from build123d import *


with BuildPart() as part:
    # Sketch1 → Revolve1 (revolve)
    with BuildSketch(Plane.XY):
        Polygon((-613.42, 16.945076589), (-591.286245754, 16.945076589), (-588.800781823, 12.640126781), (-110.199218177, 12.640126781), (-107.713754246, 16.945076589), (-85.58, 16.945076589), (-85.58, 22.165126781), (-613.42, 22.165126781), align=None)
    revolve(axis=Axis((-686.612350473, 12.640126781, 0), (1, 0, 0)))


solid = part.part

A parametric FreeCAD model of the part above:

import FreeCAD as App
import Part
import Sketcher

V = App.Vector
Q = App.Units.Quantity


def add_polygon(sketch, points):
    """Adds a closed chain of lines whose ends are joined by coincident constraints."""
    first, n = sketch.GeometryCount, len(points)
    for a, b in zip(points, points[1:] + points[:1]):
        sketch.addGeometry(Part.LineSegment(App.Vector(*a, 0), App.Vector(*b, 0)), False)
    for i in range(n):
        sketch.addConstraint(Sketcher.Constraint("Coincident", first + i, 2, first + (i + 1) % n, 1))

doc = App.newDocument("Part")
params = doc.addObject("Spreadsheet::Sheet", "Params")
for row, (alias, value) in enumerate([
    ("sketch1_width", "527.84 mm"),
    ("revolution_angle", "360 deg"),
], start=1):
    params.set(f"A{row}", alias)
    params.set(f"B{row}", "=" + value)
    params.setAlias(f"B{row}", alias)

body = doc.addObject("PartDesign::Body", "Body")

sketch1 = body.newObject("Sketcher::SketchObject", "Sketch")
sketch1.AttachmentSupport = (doc.getObject("XY_Plane"), [""])
sketch1.MapMode = "FlatFace"
add_polygon(sketch1, [(-613.4, 16.9), (-591.3, 16.9), (-588.8, 12.6), (-110.2, 12.6), (-107.7, 16.9), (-85.6, 16.9), (-85.6, 22.2), (-613.4, 22.2)])
sketch1.addGeometry(Part.LineSegment(V(-613.4, 12.6, 0), V(-85.6, 12.6, 0)), True)
sketch1.addConstraint([
    Sketcher.Constraint("Horizontal", 0),
    Sketcher.Constraint("Horizontal", 2),
    Sketcher.Constraint("Horizontal", 4),
    Sketcher.Constraint("Vertical", 5),
    Sketcher.Constraint("Horizontal", 6),
    Sketcher.Constraint("Vertical", 7),
    Sketcher.Constraint("Horizontal", 8),
    Sketcher.Constraint("Horizontal", 0, 2, 3, 2),
    Sketcher.Constraint("Horizontal", 2, 2, 8, 1),
    Sketcher.Constraint("Vertical", 7, 2, 8, 1),
    Sketcher.Constraint("Vertical", 5, 2, 8, 2),
    Sketcher.Constraint("Equal", 0, 4),
    Sketcher.Constraint("Equal", 1, 3),
    Sketcher.Constraint("Angle", 1, Q("-60 deg")),
    Sketcher.Constraint("DistanceX", 6, 2, 6, 1, Q("527.84 mm")),
    Sketcher.Constraint("DistanceX", 4, 2, -1, 1, Q("85.58 mm")),
    Sketcher.Constraint("DistanceY", 2, 2, 5, 2, Q("9.525 mm")),
    Sketcher.Constraint("DistanceY", 5, 1, 5, 2, Q("5.22005 mm")),
    Sketcher.Constraint("DistanceX", 0, 1, 0, 2, Q("22.133754 mm")),
    Sketcher.Constraint("DistanceY", -1, 1, 0, 2, Q("16.945077 mm")),
])
sketch1.setExpression("Constraints[22]", "Params.sketch1_width")
revolution = body.newObject("PartDesign::Revolution", "Revolution")
revolution.Profile = sketch1
revolution.ReferenceAxis = (sketch1, ["Axis0"])
revolution.setExpression("Angle", "Params.revolution_angle")

doc.recompute()
